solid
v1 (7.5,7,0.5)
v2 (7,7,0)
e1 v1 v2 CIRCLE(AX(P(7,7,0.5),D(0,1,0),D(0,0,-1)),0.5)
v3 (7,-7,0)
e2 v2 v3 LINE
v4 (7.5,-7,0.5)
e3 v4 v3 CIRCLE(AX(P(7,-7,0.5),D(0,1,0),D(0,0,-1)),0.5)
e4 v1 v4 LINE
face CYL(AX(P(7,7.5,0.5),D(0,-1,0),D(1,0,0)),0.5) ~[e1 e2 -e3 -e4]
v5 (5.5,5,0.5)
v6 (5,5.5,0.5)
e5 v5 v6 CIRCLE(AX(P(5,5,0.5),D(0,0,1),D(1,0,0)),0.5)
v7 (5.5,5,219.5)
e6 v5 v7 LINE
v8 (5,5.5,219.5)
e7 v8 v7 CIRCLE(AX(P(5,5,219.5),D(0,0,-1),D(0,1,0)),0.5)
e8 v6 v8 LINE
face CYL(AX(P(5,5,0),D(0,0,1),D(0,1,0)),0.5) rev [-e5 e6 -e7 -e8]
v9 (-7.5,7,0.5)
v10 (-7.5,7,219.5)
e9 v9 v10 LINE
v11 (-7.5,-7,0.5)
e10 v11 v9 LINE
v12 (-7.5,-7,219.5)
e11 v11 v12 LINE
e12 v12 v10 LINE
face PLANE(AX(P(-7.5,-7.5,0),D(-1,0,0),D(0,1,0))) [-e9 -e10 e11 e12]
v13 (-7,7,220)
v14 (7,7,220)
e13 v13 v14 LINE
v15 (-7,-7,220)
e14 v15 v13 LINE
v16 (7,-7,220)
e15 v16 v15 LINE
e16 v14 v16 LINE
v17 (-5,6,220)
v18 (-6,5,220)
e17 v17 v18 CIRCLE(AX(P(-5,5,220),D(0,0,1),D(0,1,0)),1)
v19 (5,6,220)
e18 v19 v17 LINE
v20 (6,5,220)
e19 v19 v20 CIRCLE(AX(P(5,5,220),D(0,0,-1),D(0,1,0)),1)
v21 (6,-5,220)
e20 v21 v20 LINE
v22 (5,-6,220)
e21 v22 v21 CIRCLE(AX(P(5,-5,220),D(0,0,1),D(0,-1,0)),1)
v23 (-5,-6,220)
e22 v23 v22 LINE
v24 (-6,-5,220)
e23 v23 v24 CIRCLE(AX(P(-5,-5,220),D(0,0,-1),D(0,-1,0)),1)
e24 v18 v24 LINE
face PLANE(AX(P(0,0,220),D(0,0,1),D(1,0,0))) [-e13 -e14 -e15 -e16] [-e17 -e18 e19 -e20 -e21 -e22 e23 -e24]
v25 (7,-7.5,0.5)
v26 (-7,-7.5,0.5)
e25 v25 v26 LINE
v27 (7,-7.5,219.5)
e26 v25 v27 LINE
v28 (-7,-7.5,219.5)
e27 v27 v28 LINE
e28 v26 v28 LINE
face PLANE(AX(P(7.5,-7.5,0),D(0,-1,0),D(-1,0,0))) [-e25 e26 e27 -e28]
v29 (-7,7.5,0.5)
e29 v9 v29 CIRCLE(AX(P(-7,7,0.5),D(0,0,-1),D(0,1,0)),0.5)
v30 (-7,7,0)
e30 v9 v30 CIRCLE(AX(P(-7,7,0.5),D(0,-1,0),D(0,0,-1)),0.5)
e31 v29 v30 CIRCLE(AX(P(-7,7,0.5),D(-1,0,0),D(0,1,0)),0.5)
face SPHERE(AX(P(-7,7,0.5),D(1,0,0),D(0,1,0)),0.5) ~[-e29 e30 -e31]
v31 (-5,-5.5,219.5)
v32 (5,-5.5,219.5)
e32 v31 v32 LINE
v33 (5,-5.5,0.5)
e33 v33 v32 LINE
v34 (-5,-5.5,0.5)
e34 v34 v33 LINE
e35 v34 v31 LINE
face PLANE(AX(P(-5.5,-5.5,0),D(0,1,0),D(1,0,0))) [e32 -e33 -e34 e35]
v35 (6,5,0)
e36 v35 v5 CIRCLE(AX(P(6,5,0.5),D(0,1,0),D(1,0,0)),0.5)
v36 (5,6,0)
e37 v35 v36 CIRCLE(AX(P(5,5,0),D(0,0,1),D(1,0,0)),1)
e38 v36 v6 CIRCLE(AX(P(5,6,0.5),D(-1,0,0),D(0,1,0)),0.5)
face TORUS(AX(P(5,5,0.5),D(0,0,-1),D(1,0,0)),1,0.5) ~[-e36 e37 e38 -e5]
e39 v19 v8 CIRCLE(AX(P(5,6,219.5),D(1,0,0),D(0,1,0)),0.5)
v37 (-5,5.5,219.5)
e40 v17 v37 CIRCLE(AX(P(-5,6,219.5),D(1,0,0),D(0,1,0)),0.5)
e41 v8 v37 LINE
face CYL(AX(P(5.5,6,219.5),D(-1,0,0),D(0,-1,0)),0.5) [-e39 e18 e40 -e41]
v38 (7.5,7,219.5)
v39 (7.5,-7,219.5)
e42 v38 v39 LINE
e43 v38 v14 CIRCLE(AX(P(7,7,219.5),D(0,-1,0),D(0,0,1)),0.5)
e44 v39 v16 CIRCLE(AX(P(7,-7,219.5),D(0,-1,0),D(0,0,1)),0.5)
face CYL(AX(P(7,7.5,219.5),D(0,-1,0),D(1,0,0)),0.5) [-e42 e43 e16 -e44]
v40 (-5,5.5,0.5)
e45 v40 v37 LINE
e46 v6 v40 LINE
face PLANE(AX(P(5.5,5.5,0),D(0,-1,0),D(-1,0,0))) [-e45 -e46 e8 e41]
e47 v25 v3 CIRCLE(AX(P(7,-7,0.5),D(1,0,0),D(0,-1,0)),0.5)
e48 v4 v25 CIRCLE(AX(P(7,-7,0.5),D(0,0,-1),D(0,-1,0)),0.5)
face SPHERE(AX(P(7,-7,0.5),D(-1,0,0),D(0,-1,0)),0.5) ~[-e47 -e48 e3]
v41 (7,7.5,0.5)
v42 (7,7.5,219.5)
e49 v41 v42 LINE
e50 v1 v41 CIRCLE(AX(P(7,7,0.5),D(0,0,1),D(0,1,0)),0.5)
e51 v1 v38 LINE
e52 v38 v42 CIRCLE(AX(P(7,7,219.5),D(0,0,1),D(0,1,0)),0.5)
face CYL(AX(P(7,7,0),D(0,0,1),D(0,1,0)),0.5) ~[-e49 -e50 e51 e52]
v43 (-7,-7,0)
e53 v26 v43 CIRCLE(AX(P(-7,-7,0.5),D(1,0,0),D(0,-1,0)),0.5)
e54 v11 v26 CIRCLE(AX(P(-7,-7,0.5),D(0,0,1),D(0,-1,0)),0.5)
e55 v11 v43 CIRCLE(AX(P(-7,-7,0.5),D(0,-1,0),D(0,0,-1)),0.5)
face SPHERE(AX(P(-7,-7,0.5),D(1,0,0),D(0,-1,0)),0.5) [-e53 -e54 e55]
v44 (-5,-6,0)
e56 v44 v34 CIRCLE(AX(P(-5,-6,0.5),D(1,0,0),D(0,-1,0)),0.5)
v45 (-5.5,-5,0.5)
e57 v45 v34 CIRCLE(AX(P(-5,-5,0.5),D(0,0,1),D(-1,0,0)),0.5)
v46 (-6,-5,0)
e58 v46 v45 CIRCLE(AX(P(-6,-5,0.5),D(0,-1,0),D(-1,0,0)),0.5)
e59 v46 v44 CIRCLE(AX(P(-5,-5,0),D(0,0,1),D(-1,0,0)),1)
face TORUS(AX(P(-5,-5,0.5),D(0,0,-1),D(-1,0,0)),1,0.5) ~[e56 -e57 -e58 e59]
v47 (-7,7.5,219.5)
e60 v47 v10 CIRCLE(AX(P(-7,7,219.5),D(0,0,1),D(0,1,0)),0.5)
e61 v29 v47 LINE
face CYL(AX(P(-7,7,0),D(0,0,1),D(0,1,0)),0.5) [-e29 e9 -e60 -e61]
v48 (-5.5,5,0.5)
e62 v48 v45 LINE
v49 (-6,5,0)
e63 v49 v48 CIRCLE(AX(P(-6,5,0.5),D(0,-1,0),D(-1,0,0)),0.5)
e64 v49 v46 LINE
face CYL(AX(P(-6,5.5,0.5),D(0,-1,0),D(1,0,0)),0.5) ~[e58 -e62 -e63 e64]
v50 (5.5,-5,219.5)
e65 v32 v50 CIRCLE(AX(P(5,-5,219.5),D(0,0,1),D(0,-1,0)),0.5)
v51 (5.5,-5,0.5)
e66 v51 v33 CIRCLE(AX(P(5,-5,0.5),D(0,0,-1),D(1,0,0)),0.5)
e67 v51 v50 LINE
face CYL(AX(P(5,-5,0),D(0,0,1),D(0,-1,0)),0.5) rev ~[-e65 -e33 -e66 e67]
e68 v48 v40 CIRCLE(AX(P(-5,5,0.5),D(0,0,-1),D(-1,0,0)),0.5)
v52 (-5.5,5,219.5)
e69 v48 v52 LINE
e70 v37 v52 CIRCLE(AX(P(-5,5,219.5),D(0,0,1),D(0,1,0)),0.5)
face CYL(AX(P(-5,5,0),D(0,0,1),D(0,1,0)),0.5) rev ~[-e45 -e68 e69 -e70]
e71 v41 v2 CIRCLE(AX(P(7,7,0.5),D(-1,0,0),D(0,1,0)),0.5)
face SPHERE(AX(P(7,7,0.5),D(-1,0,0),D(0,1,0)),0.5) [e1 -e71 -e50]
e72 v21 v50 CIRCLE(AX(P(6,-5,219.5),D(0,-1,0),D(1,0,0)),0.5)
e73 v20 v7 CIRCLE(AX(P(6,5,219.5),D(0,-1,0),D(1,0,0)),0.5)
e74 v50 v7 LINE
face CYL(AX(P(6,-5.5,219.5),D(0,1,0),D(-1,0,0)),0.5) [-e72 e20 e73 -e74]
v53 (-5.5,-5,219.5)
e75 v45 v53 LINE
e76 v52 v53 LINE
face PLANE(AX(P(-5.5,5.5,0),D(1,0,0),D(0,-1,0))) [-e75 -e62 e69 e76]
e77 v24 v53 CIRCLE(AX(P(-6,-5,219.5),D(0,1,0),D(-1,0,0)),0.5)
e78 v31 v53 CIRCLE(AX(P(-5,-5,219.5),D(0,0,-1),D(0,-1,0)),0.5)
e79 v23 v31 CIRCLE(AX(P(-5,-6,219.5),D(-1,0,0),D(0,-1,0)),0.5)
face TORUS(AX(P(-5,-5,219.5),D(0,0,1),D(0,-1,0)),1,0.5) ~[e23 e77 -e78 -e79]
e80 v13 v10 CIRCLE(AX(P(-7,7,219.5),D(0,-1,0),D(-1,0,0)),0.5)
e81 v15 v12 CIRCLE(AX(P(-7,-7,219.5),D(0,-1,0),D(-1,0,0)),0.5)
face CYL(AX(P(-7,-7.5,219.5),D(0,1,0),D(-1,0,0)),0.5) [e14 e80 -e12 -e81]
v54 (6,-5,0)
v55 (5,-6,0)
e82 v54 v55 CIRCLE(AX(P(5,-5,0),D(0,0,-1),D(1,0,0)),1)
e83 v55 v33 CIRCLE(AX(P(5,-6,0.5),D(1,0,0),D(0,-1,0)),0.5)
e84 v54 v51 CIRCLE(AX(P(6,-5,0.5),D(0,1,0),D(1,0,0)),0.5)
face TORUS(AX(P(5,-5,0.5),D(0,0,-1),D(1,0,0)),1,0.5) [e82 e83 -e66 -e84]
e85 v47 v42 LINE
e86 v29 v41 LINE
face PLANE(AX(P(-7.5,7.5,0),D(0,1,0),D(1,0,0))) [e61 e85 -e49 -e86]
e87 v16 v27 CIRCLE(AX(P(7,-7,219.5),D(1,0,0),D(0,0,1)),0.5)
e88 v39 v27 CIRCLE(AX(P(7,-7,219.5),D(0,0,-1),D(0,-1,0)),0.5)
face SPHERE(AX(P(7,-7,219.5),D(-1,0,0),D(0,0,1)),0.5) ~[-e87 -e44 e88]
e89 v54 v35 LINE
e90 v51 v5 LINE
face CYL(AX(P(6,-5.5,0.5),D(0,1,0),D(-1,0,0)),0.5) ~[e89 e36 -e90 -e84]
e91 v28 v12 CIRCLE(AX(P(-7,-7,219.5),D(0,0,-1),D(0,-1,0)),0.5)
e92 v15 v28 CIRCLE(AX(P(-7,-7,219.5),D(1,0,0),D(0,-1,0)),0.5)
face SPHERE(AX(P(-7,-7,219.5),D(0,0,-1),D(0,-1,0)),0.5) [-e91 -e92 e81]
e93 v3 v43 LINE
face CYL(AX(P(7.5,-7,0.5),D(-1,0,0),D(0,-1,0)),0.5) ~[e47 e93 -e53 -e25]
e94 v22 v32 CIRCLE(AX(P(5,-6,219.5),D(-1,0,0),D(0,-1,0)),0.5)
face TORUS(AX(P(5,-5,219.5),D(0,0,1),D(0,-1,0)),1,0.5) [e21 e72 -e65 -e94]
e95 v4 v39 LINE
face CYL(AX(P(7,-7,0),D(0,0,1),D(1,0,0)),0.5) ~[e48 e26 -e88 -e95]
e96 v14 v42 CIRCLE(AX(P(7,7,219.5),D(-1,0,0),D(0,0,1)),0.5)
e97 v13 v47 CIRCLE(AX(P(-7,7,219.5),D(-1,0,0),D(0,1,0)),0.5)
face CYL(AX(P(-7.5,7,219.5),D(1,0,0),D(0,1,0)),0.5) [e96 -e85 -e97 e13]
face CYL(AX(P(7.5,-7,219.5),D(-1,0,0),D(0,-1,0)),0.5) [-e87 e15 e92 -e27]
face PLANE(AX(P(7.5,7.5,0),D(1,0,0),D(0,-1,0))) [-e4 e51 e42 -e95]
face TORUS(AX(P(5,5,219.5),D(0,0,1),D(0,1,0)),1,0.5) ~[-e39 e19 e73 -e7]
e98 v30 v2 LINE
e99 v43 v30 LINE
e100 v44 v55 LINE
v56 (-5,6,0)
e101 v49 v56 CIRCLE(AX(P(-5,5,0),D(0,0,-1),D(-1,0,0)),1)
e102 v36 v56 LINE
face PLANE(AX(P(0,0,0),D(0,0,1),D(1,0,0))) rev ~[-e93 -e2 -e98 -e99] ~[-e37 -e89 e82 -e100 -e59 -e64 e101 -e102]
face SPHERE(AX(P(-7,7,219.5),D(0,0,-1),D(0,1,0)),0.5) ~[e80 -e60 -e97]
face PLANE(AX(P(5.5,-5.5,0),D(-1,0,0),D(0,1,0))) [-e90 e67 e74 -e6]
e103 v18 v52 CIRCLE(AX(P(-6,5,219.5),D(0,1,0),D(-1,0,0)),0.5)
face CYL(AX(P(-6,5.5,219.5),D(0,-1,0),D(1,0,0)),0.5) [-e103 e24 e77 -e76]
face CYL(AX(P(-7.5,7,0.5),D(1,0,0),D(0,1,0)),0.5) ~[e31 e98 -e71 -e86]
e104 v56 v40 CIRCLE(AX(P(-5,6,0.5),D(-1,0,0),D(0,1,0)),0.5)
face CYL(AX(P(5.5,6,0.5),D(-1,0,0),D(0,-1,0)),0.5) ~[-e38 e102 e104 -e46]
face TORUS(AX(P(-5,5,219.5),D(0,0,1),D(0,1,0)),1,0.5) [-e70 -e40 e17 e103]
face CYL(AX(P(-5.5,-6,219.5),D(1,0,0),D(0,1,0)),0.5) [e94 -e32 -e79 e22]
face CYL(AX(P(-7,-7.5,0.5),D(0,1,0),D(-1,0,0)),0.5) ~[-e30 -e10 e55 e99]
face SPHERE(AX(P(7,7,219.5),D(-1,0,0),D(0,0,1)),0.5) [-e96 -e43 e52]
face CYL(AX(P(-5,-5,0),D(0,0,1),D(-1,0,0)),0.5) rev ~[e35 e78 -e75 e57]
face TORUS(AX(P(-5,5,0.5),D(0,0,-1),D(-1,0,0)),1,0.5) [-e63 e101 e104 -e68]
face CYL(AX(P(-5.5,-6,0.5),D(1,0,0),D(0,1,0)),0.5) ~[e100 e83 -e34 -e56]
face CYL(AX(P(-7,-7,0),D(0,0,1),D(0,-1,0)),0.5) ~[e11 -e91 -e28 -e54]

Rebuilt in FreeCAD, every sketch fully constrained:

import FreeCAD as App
import Part
import Sketcher
from FreeCAD import Vector
Q = App.Units.Quantity

doc = App.newDocument("Part")
body = doc.addObject("PartDesign::Body", "Body")

# Sketch on XY plane
sketch1 = body.newObject("Sketcher::SketchObject", "Sketch")
sketch1.AttachmentSupport = (doc.getObject("XY_Plane"), [""])
sketch1.MapMode = "FlatFace"
sketch1.addGeometry(Part.LineSegment(Vector(8, 8, 0), Vector(-8, 8, 0)), False)
sketch1.addGeometry(Part.LineSegment(Vector(-8, 8, 0), Vector(-8, -8, 0)), False)
sketch1.addGeometry(Part.LineSegment(Vector(-8, -8, 0), Vector(8, -8, 0)), False)
sketch1.addGeometry(Part.LineSegment(Vector(8, -8, 0), Vector(8, 8, 0)), False)
sketch1.addGeometry(Part.LineSegment(Vector(-6, 6, 0), Vector(6, 6, 0)), False)
sketch1.addGeometry(Part.LineSegment(Vector(6, 6, 0), Vector(6, -6, 0)), False)
sketch1.addGeometry(Part.LineSegment(Vector(6, -6, 0), Vector(-6, -6, 0)), False)
sketch1.addGeometry(Part.LineSegment(Vector(-6, -6, 0), Vector(-6, 6, 0)), False)
sketch1.addConstraint(Sketcher.Constraint("Coincident", 0, 2, 1, 1))
sketch1.addConstraint(Sketcher.Constraint("Coincident", 1, 2, 2, 1))
sketch1.addConstraint(Sketcher.Constraint("Coincident", 2, 2, 3, 1))
sketch1.addConstraint(Sketcher.Constraint("Coincident", 3, 2, 0, 1))
sketch1.addConstraint(Sketcher.Constraint("Coincident", 4, 2, 5, 1))
sketch1.addConstraint(Sketcher.Constraint("Coincident", 5, 2, 6, 1))
sketch1.addConstraint(Sketcher.Constraint("Coincident", 6, 2, 7, 1))
sketch1.addConstraint(Sketcher.Constraint("Coincident", 7, 2, 4, 1))
sketch1.addConstraint(Sketcher.Constraint("Horizontal", 0))
sketch1.addConstraint(Sketcher.Constraint("Vertical", 1))
sketch1.addConstraint(Sketcher.Constraint("Horizontal", 2))
sketch1.addConstraint(Sketcher.Constraint("Vertical", 3))
sketch1.addConstraint(Sketcher.Constraint("Horizontal", 4))
sketch1.addConstraint(Sketcher.Constraint("Vertical", 5))
sketch1.addConstraint(Sketcher.Constraint("Horizontal", 6))
sketch1.addConstraint(Sketcher.Constraint("Vertical", 7))
sketch1.addConstraint(Sketcher.Constraint("Symmetric", 0, 2, 2, 2, -1, 1))
sketch1.addConstraint(Sketcher.Constraint("Symmetric", 4, 2, 6, 2, -1, 1))
sketch1.addConstraint(Sketcher.Constraint("Equal", 2, 1))
sketch1.addConstraint(Sketcher.Constraint("Equal", 6, 5))
sketch1.addConstraint(Sketcher.Constraint("DistanceX", 0, 2, 0, 1, Q("15 mm")))
sketch1.addConstraint(Sketcher.Constraint("DistanceX", 4, 2, 3, 2, Q("2 mm")))
pad1 = body.newObject("PartDesign::Pad", "Pad")
pad1.Profile = sketch1
pad1.Length = 220
doc.recompute()

fillet = body.newObject("PartDesign::Fillet", "Fillet")
fillet.Base = (pad1, ["Edge1"])
fillet.UseAllEdges = True
fillet.Radius = 0.5

doc.recompute()
